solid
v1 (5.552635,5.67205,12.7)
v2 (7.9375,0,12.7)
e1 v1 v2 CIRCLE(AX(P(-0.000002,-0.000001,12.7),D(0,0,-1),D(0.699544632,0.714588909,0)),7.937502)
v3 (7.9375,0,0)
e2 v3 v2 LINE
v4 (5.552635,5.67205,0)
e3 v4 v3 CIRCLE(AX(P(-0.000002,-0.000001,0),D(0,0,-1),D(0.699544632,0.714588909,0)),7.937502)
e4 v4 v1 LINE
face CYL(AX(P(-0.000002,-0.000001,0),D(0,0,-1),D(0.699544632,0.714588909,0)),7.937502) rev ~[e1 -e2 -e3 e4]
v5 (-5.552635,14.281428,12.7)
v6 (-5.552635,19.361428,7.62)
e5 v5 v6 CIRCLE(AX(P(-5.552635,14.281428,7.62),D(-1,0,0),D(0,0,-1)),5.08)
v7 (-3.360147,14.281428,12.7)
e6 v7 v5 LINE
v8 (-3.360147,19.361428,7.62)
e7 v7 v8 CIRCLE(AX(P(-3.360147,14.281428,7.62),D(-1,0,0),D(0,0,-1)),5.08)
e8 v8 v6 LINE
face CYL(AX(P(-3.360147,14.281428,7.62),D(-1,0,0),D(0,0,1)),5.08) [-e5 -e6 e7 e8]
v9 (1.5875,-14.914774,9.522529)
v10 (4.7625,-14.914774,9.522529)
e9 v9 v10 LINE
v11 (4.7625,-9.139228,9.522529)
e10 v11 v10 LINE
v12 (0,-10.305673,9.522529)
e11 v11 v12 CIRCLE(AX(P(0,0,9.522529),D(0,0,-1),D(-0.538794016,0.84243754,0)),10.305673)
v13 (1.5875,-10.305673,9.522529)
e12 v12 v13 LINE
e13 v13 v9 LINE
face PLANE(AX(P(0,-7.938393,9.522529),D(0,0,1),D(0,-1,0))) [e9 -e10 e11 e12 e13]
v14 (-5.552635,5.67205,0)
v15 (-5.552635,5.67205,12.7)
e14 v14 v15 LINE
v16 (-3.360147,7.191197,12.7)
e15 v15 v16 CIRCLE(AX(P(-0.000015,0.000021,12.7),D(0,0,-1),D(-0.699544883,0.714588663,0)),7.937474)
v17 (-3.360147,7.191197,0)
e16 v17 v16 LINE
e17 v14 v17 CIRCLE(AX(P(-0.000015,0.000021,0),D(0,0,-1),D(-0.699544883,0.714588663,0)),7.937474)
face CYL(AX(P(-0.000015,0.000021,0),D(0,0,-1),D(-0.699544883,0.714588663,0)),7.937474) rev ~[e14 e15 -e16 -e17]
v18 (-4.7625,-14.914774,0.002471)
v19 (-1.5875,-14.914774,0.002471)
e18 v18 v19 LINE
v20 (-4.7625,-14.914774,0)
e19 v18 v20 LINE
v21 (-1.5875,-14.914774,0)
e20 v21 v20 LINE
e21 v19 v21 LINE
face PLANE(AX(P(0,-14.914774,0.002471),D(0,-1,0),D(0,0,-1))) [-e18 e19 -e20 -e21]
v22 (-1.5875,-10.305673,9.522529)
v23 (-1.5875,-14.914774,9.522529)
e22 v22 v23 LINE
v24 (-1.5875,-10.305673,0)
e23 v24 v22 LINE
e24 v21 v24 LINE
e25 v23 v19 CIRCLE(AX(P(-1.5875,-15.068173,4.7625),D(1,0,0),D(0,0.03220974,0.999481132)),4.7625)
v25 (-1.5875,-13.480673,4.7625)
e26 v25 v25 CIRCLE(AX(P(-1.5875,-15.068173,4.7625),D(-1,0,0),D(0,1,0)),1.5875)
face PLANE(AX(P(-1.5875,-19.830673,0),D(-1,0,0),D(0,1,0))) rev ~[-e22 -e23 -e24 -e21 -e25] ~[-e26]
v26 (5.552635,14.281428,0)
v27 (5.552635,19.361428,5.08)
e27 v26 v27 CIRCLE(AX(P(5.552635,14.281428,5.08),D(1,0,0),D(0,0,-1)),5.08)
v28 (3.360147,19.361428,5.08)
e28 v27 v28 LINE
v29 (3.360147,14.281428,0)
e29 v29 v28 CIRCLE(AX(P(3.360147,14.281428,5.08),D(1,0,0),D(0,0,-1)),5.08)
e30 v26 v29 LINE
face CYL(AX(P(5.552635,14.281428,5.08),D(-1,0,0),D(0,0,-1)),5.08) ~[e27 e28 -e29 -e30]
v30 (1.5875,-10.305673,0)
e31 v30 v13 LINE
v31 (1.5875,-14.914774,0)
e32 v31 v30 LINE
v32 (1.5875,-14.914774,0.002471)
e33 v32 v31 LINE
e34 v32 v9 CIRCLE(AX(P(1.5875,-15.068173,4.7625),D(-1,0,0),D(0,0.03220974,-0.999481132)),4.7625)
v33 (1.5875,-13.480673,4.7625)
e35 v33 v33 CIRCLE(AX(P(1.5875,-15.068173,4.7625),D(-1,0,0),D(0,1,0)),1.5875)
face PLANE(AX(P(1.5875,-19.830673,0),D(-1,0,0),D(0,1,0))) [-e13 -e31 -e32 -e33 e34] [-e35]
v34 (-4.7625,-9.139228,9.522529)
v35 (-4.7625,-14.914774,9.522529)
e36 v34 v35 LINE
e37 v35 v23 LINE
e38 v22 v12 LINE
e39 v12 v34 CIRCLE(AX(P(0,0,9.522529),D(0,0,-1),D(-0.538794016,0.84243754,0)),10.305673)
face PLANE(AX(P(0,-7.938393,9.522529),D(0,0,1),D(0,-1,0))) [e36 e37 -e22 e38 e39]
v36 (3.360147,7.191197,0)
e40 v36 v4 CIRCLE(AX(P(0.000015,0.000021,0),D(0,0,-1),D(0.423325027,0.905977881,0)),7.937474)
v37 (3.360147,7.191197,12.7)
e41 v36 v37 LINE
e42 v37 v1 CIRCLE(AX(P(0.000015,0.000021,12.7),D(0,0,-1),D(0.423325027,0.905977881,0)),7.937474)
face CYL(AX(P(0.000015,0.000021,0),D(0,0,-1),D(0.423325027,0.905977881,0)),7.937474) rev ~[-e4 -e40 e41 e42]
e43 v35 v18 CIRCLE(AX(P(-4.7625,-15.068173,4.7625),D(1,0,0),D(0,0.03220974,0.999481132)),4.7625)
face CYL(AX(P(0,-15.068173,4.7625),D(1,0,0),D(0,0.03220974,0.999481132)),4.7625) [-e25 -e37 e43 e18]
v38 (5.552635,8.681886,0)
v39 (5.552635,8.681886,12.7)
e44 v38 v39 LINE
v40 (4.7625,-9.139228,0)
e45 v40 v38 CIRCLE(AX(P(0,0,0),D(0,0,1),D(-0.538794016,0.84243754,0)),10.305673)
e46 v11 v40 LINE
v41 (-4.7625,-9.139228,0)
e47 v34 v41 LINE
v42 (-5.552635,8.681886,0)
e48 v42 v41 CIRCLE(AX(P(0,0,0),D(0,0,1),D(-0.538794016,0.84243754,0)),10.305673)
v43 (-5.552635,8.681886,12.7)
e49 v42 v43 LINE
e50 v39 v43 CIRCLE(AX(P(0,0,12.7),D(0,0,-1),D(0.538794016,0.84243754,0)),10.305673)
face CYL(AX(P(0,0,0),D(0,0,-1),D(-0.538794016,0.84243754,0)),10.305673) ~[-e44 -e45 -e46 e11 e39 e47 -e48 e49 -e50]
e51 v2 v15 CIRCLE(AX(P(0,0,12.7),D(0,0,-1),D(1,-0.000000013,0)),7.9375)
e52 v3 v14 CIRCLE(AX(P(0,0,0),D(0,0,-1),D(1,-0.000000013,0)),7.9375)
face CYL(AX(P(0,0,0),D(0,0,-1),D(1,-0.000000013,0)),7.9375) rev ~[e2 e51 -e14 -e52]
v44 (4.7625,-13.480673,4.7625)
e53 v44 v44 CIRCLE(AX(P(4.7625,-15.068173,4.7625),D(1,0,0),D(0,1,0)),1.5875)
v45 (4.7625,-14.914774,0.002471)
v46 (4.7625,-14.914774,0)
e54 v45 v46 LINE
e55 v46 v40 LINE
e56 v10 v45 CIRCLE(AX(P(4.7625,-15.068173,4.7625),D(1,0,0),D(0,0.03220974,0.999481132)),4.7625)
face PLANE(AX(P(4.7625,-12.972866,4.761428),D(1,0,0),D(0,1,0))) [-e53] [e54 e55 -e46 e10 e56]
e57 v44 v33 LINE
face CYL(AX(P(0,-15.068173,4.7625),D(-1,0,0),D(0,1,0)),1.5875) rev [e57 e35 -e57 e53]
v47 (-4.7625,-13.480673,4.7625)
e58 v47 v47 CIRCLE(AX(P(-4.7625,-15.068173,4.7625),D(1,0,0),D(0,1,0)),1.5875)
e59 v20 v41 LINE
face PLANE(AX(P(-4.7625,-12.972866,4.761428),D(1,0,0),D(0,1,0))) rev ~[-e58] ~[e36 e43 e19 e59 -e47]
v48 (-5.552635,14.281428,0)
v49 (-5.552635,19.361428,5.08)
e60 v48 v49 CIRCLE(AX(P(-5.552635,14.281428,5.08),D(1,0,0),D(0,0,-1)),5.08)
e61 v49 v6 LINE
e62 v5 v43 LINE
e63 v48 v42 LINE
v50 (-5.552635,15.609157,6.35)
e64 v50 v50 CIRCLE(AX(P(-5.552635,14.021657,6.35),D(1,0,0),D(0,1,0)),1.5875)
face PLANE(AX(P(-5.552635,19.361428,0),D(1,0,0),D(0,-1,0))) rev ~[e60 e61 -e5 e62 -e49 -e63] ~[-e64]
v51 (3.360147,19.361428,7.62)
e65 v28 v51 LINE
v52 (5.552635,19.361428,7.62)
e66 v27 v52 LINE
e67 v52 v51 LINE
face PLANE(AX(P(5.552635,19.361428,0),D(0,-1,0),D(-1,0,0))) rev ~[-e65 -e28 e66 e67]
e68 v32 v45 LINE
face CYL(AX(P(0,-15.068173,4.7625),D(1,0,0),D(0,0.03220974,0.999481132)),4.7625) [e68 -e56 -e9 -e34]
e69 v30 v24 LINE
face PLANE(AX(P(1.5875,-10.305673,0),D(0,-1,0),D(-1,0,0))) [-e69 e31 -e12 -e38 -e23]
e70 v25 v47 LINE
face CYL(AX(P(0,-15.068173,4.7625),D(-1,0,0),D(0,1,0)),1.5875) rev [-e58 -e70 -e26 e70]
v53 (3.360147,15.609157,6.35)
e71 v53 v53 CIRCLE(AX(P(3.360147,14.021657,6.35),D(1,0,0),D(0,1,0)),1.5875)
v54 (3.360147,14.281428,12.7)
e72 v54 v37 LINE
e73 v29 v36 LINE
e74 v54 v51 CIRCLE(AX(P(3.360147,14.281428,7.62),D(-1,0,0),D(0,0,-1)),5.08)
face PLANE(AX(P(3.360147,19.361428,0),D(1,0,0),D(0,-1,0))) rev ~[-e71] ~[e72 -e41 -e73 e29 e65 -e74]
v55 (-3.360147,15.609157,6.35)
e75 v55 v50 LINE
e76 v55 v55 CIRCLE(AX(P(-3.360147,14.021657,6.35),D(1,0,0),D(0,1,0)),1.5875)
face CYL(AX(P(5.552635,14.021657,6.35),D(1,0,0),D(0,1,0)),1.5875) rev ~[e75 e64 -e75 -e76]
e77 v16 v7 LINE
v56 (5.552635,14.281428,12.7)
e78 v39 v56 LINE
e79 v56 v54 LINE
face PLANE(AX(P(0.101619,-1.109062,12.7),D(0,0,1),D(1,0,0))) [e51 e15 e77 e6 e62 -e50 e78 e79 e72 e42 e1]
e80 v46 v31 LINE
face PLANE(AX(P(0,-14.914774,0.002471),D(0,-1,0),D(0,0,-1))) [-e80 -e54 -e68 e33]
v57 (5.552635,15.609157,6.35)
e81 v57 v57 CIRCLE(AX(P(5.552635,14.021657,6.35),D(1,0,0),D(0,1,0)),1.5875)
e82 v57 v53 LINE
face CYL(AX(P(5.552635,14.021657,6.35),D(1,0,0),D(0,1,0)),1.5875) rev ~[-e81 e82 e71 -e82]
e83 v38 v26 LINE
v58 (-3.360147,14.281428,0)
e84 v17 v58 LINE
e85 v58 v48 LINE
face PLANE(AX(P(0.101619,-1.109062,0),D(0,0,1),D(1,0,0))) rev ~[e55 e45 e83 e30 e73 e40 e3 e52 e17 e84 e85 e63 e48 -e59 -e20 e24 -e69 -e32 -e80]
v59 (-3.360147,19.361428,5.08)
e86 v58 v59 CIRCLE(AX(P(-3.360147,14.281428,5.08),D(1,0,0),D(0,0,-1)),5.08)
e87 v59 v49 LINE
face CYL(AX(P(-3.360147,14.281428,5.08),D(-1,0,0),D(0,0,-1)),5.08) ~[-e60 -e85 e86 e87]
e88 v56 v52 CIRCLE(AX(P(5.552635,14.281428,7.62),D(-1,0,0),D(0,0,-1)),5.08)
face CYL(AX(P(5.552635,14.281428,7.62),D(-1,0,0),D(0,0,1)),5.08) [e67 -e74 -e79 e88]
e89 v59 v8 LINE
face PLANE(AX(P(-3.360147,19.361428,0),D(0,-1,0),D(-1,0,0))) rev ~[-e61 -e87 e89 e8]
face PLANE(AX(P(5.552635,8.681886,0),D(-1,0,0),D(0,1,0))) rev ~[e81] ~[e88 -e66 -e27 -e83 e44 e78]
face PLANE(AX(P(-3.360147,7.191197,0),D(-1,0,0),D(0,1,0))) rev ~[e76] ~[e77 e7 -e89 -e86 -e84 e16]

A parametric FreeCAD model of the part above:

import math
import FreeCAD as App
import Part
import Sketcher

V = App.Vector
Q = App.Units.Quantity


def edges_at(feature, points):
    """Names of the edges that pass closest to the given points."""
    edges = feature.Shape.Edges
    near = lambda p: min(range(len(edges)), key=lambda i: edges[i].distToShape(Part.Vertex(*p))[0])
    return sorted({f"Edge{near(p) + 1}" for p in points})

doc = App.newDocument("Part")
params = doc.addObject("Spreadsheet::Sheet", "Params")
for row, (alias, value) in enumerate([
    ("sketch1_radius", "0.3125001 in"),
    ("pad1_length", "0.5 in"),
    ("sketch2_diameter", "0.125 in"),
    ("sketch2_radius", "0.1875 in"),
    ("pad2_length", "0.375 in"),
    ("sketch3_diameter", "0.125 in"),
    ("sketch4_width", "0.125 in"),
    ("sketch4_height", "0.375 in"),
    ("pad3_length", "1 in"),
    ("fillet_radius", "0.2 in"),
], start=1):
    params.set(f"A{row}", alias)
    params.set(f"B{row}", "=" + value)
    params.setAlias(f"B{row}", alias)

body = doc.addObject("PartDesign::Body", "Body")

# Sketch on XY plane
sketch1 = body.newObject("Sketcher::SketchObject", "Sketch")
sketch1.AttachmentSupport = (doc.getObject("XY_Plane"), [""])
sketch1.MapMode = "FlatFace"
sketch1.addGeometry([
    Part.ArcOfCircle(Part.Circle(V(0, 0, 0), V(0, 0, 1), 10.3), math.radians(123), math.radians(417)),  # 0
    Part.LineSegment(V(5.6, 8.7, 0), V(5.6, 19.4, 0)),  # 1
    Part.LineSegment(V(5.6, 19.4, 0), V(3.4, 19.4, 0)),  # 2
    Part.LineSegment(V(3.4, 19.4, 0), V(3.4, 7.2, 0)),  # 3
    Part.ArcOfCircle(Part.Circle(V(0, 0, 0), V(0, 0, 1), 7.9), math.radians(45.61), math.radians(64.96)),  # 4
    Part.ArcOfCircle(Part.Circle(V(0, 0, 0), V(0, 0, 1), 7.9), math.radians(0), math.radians(46)),  # 5
    Part.ArcOfCircle(Part.Circle(V(0, 0, 0), V(0, 0, 1), 7.9), math.radians(134), math.radians(360)),  # 6
    Part.ArcOfCircle(Part.Circle(V(0, 0, 0), V(0, 0, 1), 7.9), math.radians(115.04), math.radians(134.39)),  # 7
    Part.LineSegment(V(-3.4, 7.2, 0), V(-3.4, 19.4, 0)),  # 8
    Part.LineSegment(V(-3.4, 19.4, 0), V(-5.6, 19.4, 0)),  # 9
    Part.LineSegment(V(-5.6, 19.4, 0), V(-5.6, 8.7, 0)),  # 10
], False)
sketch1.addConstraint([
    Sketcher.Constraint("Coincident", 0, 2, 1, 1),
    Sketcher.Constraint("Coincident", 1, 2, 2, 1),
    Sketcher.Constraint("Coincident", 2, 2, 3, 1),
    Sketcher.Constraint("Coincident", 3, 2, 4, 2),
    Sketcher.Constraint("Tangent", 4, 1, 5, 2),
    Sketcher.Constraint("Tangent", 5, 1, 6, 2),
    Sketcher.Constraint("Tangent", 6, 1, 7, 2),
    Sketcher.Constraint("Coincident", 7, 1, 8, 1),
    Sketcher.Constraint("Coincident", 8, 2, 9, 1),
    Sketcher.Constraint("Coincident", 9, 2, 10, 1),
    Sketcher.Constraint("Coincident", 10, 2, 0, 1),
    Sketcher.Constraint("Vertical", 1),
    Sketcher.Constraint("Horizontal", 2),
    Sketcher.Constraint("Vertical", 3),
    Sketcher.Constraint("Vertical", 8),
    Sketcher.Constraint("Horizontal", 9),
    Sketcher.Constraint("Vertical", 10),
    Sketcher.Constraint("Coincident", 0, 3, -1, 1),
    Sketcher.Constraint("Coincident", 5, 3, -1, 1),
    Sketcher.Constraint("Equal", 5, 6),
    Sketcher.Constraint("Equal", 4, 7),
    Sketcher.Constraint("Symmetric", 2, 2, 8, 2, -2),
    Sketcher.Constraint("PointOnObject", 5, 1, -1),
    Sketcher.Constraint("Horizontal", 4, 1, 6, 1),
    Sketcher.Constraint("Horizontal", 0, 2, 10, 2),
    Sketcher.Constraint("Vertical", 1, 2, 4, 1),
    Sketcher.Constraint("Radius", 5, Q("0.3125001 in")),
    Sketcher.Constraint("Radius", 0, 10.305673),
    Sketcher.Constraint("Radius", 4, 7.937474),
    Sketcher.Constraint("DistanceX", 2, 2, 2, 1, 2.192488),
    Sketcher.Constraint("DistanceY", 3, 2, 3, 1, 12.170231),
    Sketcher.Constraint("DistanceY", 1, 1, 1, 2, 10.679542),
])
sketch1.setExpression("Constraints[26]", "Params.sketch1_radius")
pad1 = body.newObject("PartDesign::Pad", "Pad")
pad1.Profile = sketch1
pad1.setExpression("Length", "Params.pad1_length")

# Sketch on YZ plane
sketch2 = body.newObject("Sketcher::SketchObject", "Sketch001")
sketch2.AttachmentSupport = (doc.getObject("YZ_Plane"), [""])
sketch2.MapMode = "FlatFace"
sketch2.addGeometry([
    Part.LineSegment(V(-7.9384, 9.5225, 0), V(-14.9148, 9.5225, 0)),  # 0
    Part.ArcOfCircle(Part.Circle(V(-15.0682, 4.7625, 0), V(0, 0, 1), 4.7625), math.radians(88), math.radians(272)),  # 1
    Part.LineSegment(V(-14.9148, 0.0025, 0), V(-14.9148, 0, 0)),  # 2
    Part.LineSegment(V(-14.9148, 0, 0), V(-7.9384, 0, 0)),  # 3
    Part.LineSegment(V(-7.9384, 0, 0), V(-7.9384, 9.5225, 0)),  # 4
    Part.Circle(V(-15.0682, 4.7625, 0), V(0, 0, 1), 1.5875),  # 5
], False)
sketch2.addConstraint([
    Sketcher.Constraint("Coincident", 0, 2, 1, 1),
    Sketcher.Constraint("Coincident", 1, 2, 2, 1),
    Sketcher.Constraint("Coincident", 2, 2, 3, 1),
    Sketcher.Constraint("Coincident", 3, 2, 4, 1),
    Sketcher.Constraint("Coincident", 4, 2, 0, 1),
    Sketcher.Constraint("Horizontal", 0),
    Sketcher.Constraint("Vertical", 2),
    Sketcher.Constraint("Horizontal", 3),
    Sketcher.Constraint("Vertical", 4),
    Sketcher.Constraint("Coincident", 5, 3, 1, 3),
    Sketcher.Constraint("PointOnObject", 2, 2, -1),
    Sketcher.Constraint("Vertical", 0, 2, 1, 2),
    Sketcher.Constraint("Diameter", 5, Q("0.125 in")),
    Sketcher.Constraint("Radius", 1, Q("0.1875 in")),
    Sketcher.Constraint("DistanceY", -1, 1, 1, 3, Q("0.1875 in")),
    Sketcher.Constraint("DistanceX", 1, 3, 3, 2, Q("0.2807 in")),
    Sketcher.Constraint("DistanceX", 0, 2, 0, 1, 6.976381),
    Sketcher.Constraint("DistanceX", 1, 3, -1, 1, 15.068173),
])
sketch2.setExpression("Constraints[12]", "Params.sketch2_diameter")
sketch2.setExpression("Constraints[13]", "Params.sketch2_radius")
pad2 = body.newObject("PartDesign::Pad", "Pad001")
pad2.Profile = sketch2
pad2.setExpression("Length", "Params.pad2_length")
pad2.Midplane = True

# Sketch on YZ plane
sketch3 = body.newObject("Sketcher::SketchObject", "Sketch002")
sketch3.AttachmentSupport = (doc.getObject("YZ_Plane"), [""])
sketch3.MapMode = "FlatFace"
sketch3.AttachmentOffset = App.Placement(V(0, 0, 5.552635), App.Rotation())
sketch3.addGeometry(Part.Circle(V(14, 6.3, 0), V(0, 0, 1), 1.6), False)
sketch3.addConstraint([
    Sketcher.Constraint("Diameter", 0, Q("0.125 in")),
    Sketcher.Constraint("DistanceY", -1, 1, 0, 3, Q("0.25 in")),
    Sketcher.Constraint("DistanceX", -1, 1, 0, 3, 14.021657),
])
sketch3.setExpression("Constraints[0]", "Params.sketch3_diameter")
pocket1 = body.newObject("PartDesign::Pocket", "Pocket")
pocket1.Profile = sketch3
pocket1.Type = "ThroughAll"
body2 = doc.addObject("PartDesign::Body", "Body001")
doc.recompute()

body2.BaseFeature = body
doc.recompute()
body3 = doc.addObject("PartDesign::Body", "Body002")
doc.recompute()

body3.BaseFeature = body
doc.recompute()
body4 = doc.addObject("PartDesign::Body", "Body003")

# Sketch on XY plane
sketch4 = body4.newObject("Sketcher::SketchObject", "Sketch003")
sketch4.AttachmentSupport = (doc.getObject("XY_Plane003"), [""])
sketch4.MapMode = "FlatFace"
sketch4.addGeometry([
    Part.LineSegment(V(1.6, -19.8, 0), V(1.6, -10.3, 0)),
    Part.LineSegment(V(1.6, -10.3, 0), V(-1.6, -10.3, 0)),
    Part.LineSegment(V(-1.6, -10.3, 0), V(-1.6, -19.8, 0)),
    Part.LineSegment(V(-1.6, -19.8, 0), V(1.6, -19.8, 0)),
], False)
sketch4.addConstraint([
    Sketcher.Constraint("Coincident", 0, 2, 1, 1),
    Sketcher.Constraint("Coincident", 1, 2, 2, 1),
    Sketcher.Constraint("Coincident", 2, 2, 3, 1),
    Sketcher.Constraint("Coincident", 3, 2, 0, 1),
    Sketcher.Constraint("Vertical", 0),
    Sketcher.Constraint("Horizontal", 1),
    Sketcher.Constraint("Vertical", 2),
    Sketcher.Constraint("Horizontal", 3),
    Sketcher.Constraint("DistanceX", 1, 2, 1, 1, Q("0.125 in")),
    Sketcher.Constraint("DistanceY", 0, 1, 0, 2, Q("0.375 in")),
    Sketcher.Constraint("DistanceX", -1, 1, 0, 2, Q("0.0625 in")),
    Sketcher.Constraint("DistanceY", 0, 2, -1, 1, 10.305673),
])
sketch4.setExpression("Constraints[8]", "Params.sketch4_width")
sketch4.setExpression("Constraints[9]", "Params.sketch4_height")
pad3 = body4.newObject("PartDesign::Pad", "Pad002")
pad3.Profile = sketch4
pad3.setExpression("Length", "Params.pad3_length")
doc.recompute()

body5 = doc.addObject("PartDesign::Body", "Body004")
body5.BaseFeature = body4
boolean = body.newObject("PartDesign::Boolean", "Boolean")
boolean.Type = "Cut"
boolean.addObjects([body5])
doc.recompute()

boolean2 = body3.newObject("PartDesign::Boolean", "Boolean001")
boolean2.Type = "Cut"
boolean2.addObjects([body4])
doc.recompute()

fillet = body3.newObject("PartDesign::Fillet", "Fillet")
fillet.Base = (boolean2, edges_at(boolean2, [
    (-4.456, 19.361, 12.7),
    (4.456, 19.361, 12.7),
    (-4.456, 19.361, 0),
    (4.456, 19.361, 0),
]))
fillet.setExpression("Radius", "Params.fillet_radius")
body.Visibility = False
body2.Visibility = False

doc.recompute()
